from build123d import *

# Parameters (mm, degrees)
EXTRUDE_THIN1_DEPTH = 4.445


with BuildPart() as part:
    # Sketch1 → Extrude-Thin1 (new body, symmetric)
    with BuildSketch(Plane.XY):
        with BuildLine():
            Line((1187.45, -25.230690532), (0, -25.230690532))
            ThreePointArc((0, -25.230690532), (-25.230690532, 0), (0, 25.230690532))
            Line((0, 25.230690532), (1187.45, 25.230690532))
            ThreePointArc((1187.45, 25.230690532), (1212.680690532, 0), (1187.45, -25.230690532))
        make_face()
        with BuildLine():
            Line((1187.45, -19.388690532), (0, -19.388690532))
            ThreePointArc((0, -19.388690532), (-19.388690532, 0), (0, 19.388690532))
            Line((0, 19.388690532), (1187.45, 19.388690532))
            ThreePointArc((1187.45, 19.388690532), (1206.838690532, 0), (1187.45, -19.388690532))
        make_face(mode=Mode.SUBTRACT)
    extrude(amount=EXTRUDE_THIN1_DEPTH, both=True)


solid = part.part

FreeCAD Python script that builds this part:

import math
import FreeCAD as App
import Part
import Sketcher
from FreeCAD import Vector
Q = App.Units.Quantity

doc = App.newDocument("Part")
body = doc.addObject("PartDesign::Body", "Body")

sketch1 = body.newObject("Sketcher::SketchObject", "Sketch")
sketch1.AttachmentSupport = (doc.getObject("XY_Plane"), [""])
sketch1.MapMode = "FlatFace"
sketch1.addGeometry([
    Part.LineSegment(Vector(0, -25, 0), Vector(1187, -25, 0)),
    Part.ArcOfCircle(Part.Circle(Vector(1187, 0, 0), Vector(0, 0, 1), 25), math.radians(-90), math.radians(90)),
    Part.LineSegment(Vector(1187, 25, 0), Vector(0, 25, 0)),
    Part.ArcOfCircle(Part.Circle(Vector(0, 0, 0), Vector(0, 0, 1), 25), math.radians(90), math.radians(270)),
    Part.LineSegment(Vector(1187, -19, 0), Vector(0, -19, 0)),
    Part.ArcOfCircle(Part.Circle(Vector(0, 0, 0), Vector(0, 0, 1), 19), math.radians(90), math.radians(270)),
    Part.LineSegment(Vector(0, 19, 0), Vector(1187, 19, 0)),
    Part.ArcOfCircle(Part.Circle(Vector(1187, 0, 0), Vector(0, 0, 1), 19), math.radians(-90), math.radians(90)),
], False)
sketch1.addConstraint([
    Sketcher.Constraint("Tangent", 0, 2, 1, 1),
    Sketcher.Constraint("Tangent", 1, 2, 2, 1),
    Sketcher.Constraint("Tangent", 2, 2, 3, 1),
    Sketcher.Constraint("Tangent", 3, 2, 0, 1),
    Sketcher.Constraint("Tangent", 4, 2, 5, 2),
    Sketcher.Constraint("Tangent", 5, 1, 6, 1),
    Sketcher.Constraint("Tangent", 6, 2, 7, 2),
    Sketcher.Constraint("Tangent", 7, 1, 4, 1),
    Sketcher.Constraint("Horizontal", 0),
    Sketcher.Constraint("Horizontal", 2),
    Sketcher.Constraint("Horizontal", 4),
    Sketcher.Constraint("Horizontal", 6),
    Sketcher.Constraint("Coincident", 3, 3, -1, 1),
    Sketcher.Constraint("Coincident", 5, 3, -1, 1),
    Sketcher.Constraint("Vertical", 7, 3, 0, 2),
    Sketcher.Constraint("DistanceX", 0, 1, 0, 2, Q("46.75 in")),
    Sketcher.Constraint("DistanceY", 3, 2, 4, 2, Q("0.23 in")),
    Sketcher.Constraint("Radius", 1, Q("25.230691 mm")),
])
pad1 = body.newObject("PartDesign::Pad", "Pad")
pad1.Profile = sketch1
pad1.Length = Q("0.35 in")
pad1.Midplane = True

doc.recompute()
